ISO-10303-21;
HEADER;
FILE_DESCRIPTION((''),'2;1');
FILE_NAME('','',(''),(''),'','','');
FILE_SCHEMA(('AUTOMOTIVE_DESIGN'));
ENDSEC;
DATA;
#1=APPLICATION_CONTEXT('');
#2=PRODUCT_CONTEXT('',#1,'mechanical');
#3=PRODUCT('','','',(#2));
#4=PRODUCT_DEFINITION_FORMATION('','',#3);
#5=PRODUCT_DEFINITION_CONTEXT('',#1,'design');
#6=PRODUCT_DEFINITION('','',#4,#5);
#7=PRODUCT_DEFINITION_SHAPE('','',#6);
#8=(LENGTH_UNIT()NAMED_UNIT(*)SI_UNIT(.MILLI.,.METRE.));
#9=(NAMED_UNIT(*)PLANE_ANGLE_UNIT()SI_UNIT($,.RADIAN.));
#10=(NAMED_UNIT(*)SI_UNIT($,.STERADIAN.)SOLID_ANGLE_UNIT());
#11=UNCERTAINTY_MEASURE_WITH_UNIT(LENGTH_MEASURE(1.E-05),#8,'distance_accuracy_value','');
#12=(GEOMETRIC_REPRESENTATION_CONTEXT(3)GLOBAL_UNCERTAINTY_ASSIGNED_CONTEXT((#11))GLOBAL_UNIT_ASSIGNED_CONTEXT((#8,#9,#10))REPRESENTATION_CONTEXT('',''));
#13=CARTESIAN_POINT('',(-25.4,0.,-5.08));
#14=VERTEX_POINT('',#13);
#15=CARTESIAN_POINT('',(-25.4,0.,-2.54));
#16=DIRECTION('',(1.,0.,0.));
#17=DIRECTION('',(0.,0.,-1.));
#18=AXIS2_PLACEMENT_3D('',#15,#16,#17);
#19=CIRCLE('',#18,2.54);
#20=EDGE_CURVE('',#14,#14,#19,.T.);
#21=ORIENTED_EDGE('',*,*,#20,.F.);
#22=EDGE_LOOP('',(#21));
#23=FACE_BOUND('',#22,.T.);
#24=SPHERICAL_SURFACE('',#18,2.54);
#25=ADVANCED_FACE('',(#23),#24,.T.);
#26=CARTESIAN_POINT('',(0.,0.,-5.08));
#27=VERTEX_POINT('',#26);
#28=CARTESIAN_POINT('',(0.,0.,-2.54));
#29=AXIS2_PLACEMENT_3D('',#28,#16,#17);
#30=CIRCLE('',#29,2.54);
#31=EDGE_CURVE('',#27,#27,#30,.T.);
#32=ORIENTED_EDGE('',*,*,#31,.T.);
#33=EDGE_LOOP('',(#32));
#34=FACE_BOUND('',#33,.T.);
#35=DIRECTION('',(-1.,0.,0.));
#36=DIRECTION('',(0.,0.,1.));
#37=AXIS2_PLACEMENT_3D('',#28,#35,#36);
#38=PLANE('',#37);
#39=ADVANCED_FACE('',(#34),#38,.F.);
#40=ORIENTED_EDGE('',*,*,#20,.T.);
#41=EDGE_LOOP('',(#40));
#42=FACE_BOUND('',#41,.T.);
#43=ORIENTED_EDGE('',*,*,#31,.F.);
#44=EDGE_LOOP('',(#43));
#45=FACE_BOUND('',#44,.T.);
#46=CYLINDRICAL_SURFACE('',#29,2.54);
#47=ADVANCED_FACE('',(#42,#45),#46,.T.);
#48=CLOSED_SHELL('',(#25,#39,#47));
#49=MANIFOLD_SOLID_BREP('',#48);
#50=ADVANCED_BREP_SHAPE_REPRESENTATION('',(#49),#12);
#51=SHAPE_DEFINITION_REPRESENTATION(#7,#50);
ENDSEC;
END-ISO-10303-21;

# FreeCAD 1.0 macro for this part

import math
import FreeCAD as App
import Part
import Sketcher
from FreeCAD import Vector
Q = App.Units.Quantity

doc = App.newDocument("Part")
params = doc.addObject("Spreadsheet::Sheet", "Params")
for row, (alias, value) in enumerate([
    ("sketch1_radius", "0.1 in"),
    ("sketch1_width", "1 in"),
    ("revolution_angle", "360 deg"),
], start=1):
    params.set(f"A{row}", alias)
    params.set(f"B{row}", "=" + value)
    params.setAlias(f"B{row}", alias)

body = doc.addObject("PartDesign::Body", "Body")

sketch1 = body.newObject("Sketcher::SketchObject", "Sketch")
sketch1.AttachmentSupport = (doc.getObject("XZ_Plane"), [""])
sketch1.MapMode = "FlatFace"
sketch1.addGeometry([
    Part.LineSegment(Vector(-25.4, 0, 0), Vector(0, 0, 0)),
    Part.LineSegment(Vector(0, 0, 0), Vector(0, -2.54, 0)),
    Part.LineSegment(Vector(0, -2.54, 0), Vector(-27.94, -2.54, 0)),
    Part.ArcOfCircle(Part.Circle(Vector(-25.4, -2.54, 0), Vector(0, 0, 1), 2.54), math.radians(90), math.radians(180)),
], False)
sketch1.addGeometry(Part.LineSegment(Vector(0, -2.54, 0), Vector(-27.94, -2.54, 0)), True)
sketch1.addConstraint([
    Sketcher.Constraint("Coincident", 0, 2, 1, 1),
    Sketcher.Constraint("Coincident", 1, 2, 2, 1),
    Sketcher.Constraint("Coincident", 2, 2, 3, 2),
    Sketcher.Constraint("Tangent", 3, 1, 0, 1),
    Sketcher.Constraint("Horizontal", 0),
    Sketcher.Constraint("Vertical", 1),
    Sketcher.Constraint("Horizontal", 2),
    Sketcher.Constraint("Horizontal", 4),
    Sketcher.Constraint("Coincident", 0, 2, -1, 1),
    Sketcher.Constraint("Coincident", 4, 1, 1, 2),
    Sketcher.Constraint("Horizontal", 3, 3, 1, 2),
    Sketcher.Constraint("Equal", 2, 4),
    Sketcher.Constraint("Radius", 3, Q("0.1 in")),
    Sketcher.Constraint("DistanceX", 0, 1, 0, 2, Q("1 in")),
])
sketch1.setExpression("Constraints[12]", "Params.sketch1_radius")
sketch1.setExpression("Constraints[13]", "Params.sketch1_width")
revolution = body.newObject("PartDesign::Revolution", "Revolution")
revolution.Profile = sketch1
revolution.ReferenceAxis = (sketch1, ["Axis0"])
revolution.setExpression("Angle", "Params.revolution_angle")

doc.recompute()
